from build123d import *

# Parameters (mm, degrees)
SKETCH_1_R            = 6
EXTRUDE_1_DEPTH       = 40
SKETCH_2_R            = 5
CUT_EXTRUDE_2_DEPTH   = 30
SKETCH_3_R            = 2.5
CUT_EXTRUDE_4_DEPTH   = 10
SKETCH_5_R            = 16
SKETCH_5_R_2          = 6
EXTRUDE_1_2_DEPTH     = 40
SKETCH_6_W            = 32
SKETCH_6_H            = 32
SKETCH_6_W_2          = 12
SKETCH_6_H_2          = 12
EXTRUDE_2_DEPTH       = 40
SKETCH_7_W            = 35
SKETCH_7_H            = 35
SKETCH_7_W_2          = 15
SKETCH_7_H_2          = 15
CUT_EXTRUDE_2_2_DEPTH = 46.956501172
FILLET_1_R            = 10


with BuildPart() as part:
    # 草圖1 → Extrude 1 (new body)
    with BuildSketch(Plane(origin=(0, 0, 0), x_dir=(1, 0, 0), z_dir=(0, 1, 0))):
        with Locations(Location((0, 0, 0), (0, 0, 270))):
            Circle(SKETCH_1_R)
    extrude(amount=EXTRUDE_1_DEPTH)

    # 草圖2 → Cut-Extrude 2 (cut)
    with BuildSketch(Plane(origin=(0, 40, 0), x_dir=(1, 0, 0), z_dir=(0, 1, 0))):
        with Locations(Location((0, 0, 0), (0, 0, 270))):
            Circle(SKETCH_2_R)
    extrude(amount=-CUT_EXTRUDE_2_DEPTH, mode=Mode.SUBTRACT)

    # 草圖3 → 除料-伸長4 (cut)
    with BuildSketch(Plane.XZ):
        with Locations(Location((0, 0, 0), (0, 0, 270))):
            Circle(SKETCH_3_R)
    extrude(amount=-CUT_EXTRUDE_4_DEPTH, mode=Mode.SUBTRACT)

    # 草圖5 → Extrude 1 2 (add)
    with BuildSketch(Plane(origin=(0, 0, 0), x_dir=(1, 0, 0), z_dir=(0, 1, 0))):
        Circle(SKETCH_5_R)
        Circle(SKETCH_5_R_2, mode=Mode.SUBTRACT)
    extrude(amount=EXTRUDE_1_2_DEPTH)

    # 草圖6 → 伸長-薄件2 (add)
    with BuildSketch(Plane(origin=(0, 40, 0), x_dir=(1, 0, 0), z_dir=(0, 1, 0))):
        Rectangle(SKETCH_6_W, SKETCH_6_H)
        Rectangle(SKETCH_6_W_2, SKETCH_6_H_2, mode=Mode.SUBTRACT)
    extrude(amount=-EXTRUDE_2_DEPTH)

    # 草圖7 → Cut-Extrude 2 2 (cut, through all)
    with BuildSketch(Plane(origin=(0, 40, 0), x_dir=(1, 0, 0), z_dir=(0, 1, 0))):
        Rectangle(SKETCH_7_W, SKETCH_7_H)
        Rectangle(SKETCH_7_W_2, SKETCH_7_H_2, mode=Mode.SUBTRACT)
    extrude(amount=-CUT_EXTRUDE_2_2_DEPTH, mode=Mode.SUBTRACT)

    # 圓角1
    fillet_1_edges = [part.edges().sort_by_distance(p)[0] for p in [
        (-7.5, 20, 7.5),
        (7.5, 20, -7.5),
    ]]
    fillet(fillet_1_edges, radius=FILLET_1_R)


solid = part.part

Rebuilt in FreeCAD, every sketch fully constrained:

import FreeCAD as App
import Part
import Sketcher
Q = App.Units.Quantity


def edges_at(feature, points):
    """Names of the edges that pass closest to the given points."""
    edges = feature.Shape.Edges
    near = lambda p: min(range(len(edges)), key=lambda i: edges[i].distToShape(Part.Vertex(*p))[0])
    return sorted({f"Edge{near(p) + 1}" for p in points})

doc = App.newDocument("Part")
body = doc.addObject("PartDesign::Body", "Body")

sketch1 = body.newObject("Sketcher::SketchObject", "Sketch")
sketch1.AttachmentSupport = (doc.getObject("XZ_Plane"), [""])
sketch1.MapMode = "FlatFace"
sketch1.addGeometry(Part.Circle(App.Vector(0, 0, 0), App.Vector(0, 0, 1), 6), False)
sketch1.addConstraint(Sketcher.Constraint("Coincident", 0, 3, -1, 1))
sketch1.addConstraint(Sketcher.Constraint("Diameter", 0, Q("12 mm")))
pad1 = body.newObject("PartDesign::Pad", "Pad")
pad1.Profile = sketch1
pad1.Length = 40
pad1.Reversed = True

sketch2 = body.newObject("Sketcher::SketchObject", "Sketch001")
sketch2.AttachmentSupport = (doc.getObject("XZ_Plane"), [""])
sketch2.MapMode = "FlatFace"
sketch2.AttachmentOffset = App.Placement(App.Vector(0, 0, -40), App.Rotation())
sketch2.addGeometry(Part.Circle(App.Vector(0, 0, 0), App.Vector(0, 0, 1), 5), False)
sketch2.addConstraint(Sketcher.Constraint("Coincident", 0, 3, -1, 1))
sketch2.addConstraint(Sketcher.Constraint("Diameter", 0, Q("10 mm")))
pocket1 = body.newObject("PartDesign::Pocket", "Pocket")
pocket1.Profile = sketch2
pocket1.Length = 30
pocket1.Reversed = True

sketch3 = body.newObject("Sketcher::SketchObject", "Sketch002")
sketch3.AttachmentSupport = (doc.getObject("XZ_Plane"), [""])
sketch3.MapMode = "FlatFace"
sketch3.addGeometry(Part.Circle(App.Vector(0, 0, 0), App.Vector(0, 0, 1), 2.5), False)
sketch3.addConstraint(Sketcher.Constraint("Coincident", 0, 3, -1, 1))
sketch3.addConstraint(Sketcher.Constraint("Diameter", 0, Q("5 mm")))
pocket2 = body.newObject("PartDesign::Pocket", "Pocket001")
pocket2.Profile = sketch3
pocket2.Length = 10

sketch4 = body.newObject("Sketcher::SketchObject", "Sketch003")
sketch4.AttachmentSupport = (doc.getObject("XZ_Plane"), [""])
sketch4.MapMode = "FlatFace"
sketch4.addGeometry(Part.Circle(App.Vector(0, 0, 0), App.Vector(0, 0, 1), 16), False)
sketch4.addGeometry(Part.Circle(App.Vector(0, 0, 0), App.Vector(0, 0, 1), 6), False)
sketch4.addConstraint(Sketcher.Constraint("Coincident", 0, 3, -1, 1))
sketch4.addConstraint(Sketcher.Constraint("Coincident", 1, 3, -1, 1))
sketch4.addConstraint(Sketcher.Constraint("Diameter", 0, Q("32 mm")))
sketch4.addConstraint(Sketcher.Constraint("Diameter", 1, Q("12 mm")))
pad2 = body.newObject("PartDesign::Pad", "Pad001")
pad2.Profile = sketch4
pad2.Length = 40
pad2.Reversed = True

sketch5 = body.newObject("Sketcher::SketchObject", "Sketch004")
sketch5.AttachmentSupport = (doc.getObject("XZ_Plane"), [""])
sketch5.MapMode = "FlatFace"
sketch5.AttachmentOffset = App.Placement(App.Vector(0, 0, -40), App.Rotation())
sketch5.addGeometry(Part.LineSegment(App.Vector(-16, -16, 0), App.Vector(-16, 16, 0)), False)
sketch5.addGeometry(Part.LineSegment(App.Vector(-16, 16, 0), App.Vector(16, 16, 0)), False)
sketch5.addGeometry(Part.LineSegment(App.Vector(16, 16, 0), App.Vector(16, -16, 0)), False)
sketch5.addGeometry(Part.LineSegment(App.Vector(16, -16, 0), App.Vector(-16, -16, 0)), False)
sketch5.addGeometry(Part.LineSegment(App.Vector(6, 6, 0), App.Vector(-6, 6, 0)), False)
sketch5.addGeometry(Part.LineSegment(App.Vector(-6, 6, 0), App.Vector(-6, -6, 0)), False)
sketch5.addGeometry(Part.LineSegment(App.Vector(-6, -6, 0), App.Vector(6, -6, 0)), False)
sketch5.addGeometry(Part.LineSegment(App.Vector(6, -6, 0), App.Vector(6, 6, 0)), False)
sketch5.addConstraint(Sketcher.Constraint("Coincident", 0, 2, 1, 1))
sketch5.addConstraint(Sketcher.Constraint("Coincident", 1, 2, 2, 1))
sketch5.addConstraint(Sketcher.Constraint("Coincident", 2, 2, 3, 1))
sketch5.addConstraint(Sketcher.Constraint("Coincident", 3, 2, 0, 1))
sketch5.addConstraint(Sketcher.Constraint("Coincident", 4, 2, 5, 1))
sketch5.addConstraint(Sketcher.Constraint("Coincident", 5, 2, 6, 1))
sketch5.addConstraint(Sketcher.Constraint("Coincident", 6, 2, 7, 1))
sketch5.addConstraint(Sketcher.Constraint("Coincident", 7, 2, 4, 1))
sketch5.addConstraint(Sketcher.Constraint("Vertical", 0))
sketch5.addConstraint(Sketcher.Constraint("Horizontal", 1))
sketch5.addConstraint(Sketcher.Constraint("Vertical", 2))
sketch5.addConstraint(Sketcher.Constraint("Horizontal", 3))
sketch5.addConstraint(Sketcher.Constraint("Horizontal", 4))
sketch5.addConstraint(Sketcher.Constraint("Vertical", 5))
sketch5.addConstraint(Sketcher.Constraint("Horizontal", 6))
sketch5.addConstraint(Sketcher.Constraint("Vertical", 7))
sketch5.addConstraint(Sketcher.Constraint("Symmetric", 0, 2, 2, 2, -1, 1))
sketch5.addConstraint(Sketcher.Constraint("Symmetric", 4, 2, 6, 2, -1, 1))
sketch5.addConstraint(Sketcher.Constraint("Equal", 3, 0))
sketch5.addConstraint(Sketcher.Constraint("Equal", 6, 5))
sketch5.addConstraint(Sketcher.Constraint("DistanceX", 1, 1, 1, 2, Q("32 mm")))
sketch5.addConstraint(Sketcher.Constraint("DistanceX", 4, 2, 4, 1, Q("12 mm")))
pad3 = body.newObject("PartDesign::Pad", "Pad002")
pad3.Profile = sketch5
pad3.Length = 40

sketch6 = body.newObject("Sketcher::SketchObject", "Sketch005")
sketch6.AttachmentSupport = (doc.getObject("XZ_Plane"), [""])
sketch6.MapMode = "FlatFace"
sketch6.AttachmentOffset = App.Placement(App.Vector(0, 0, -40), App.Rotation())
sketch6.addGeometry(Part.LineSegment(App.Vector(-18, -18, 0), App.Vector(-18, 18, 0)), False)
sketch6.addGeometry(Part.LineSegment(App.Vector(-18, 18, 0), App.Vector(18, 18, 0)), False)
sketch6.addGeometry(Part.LineSegment(App.Vector(18, 18, 0), App.Vector(18, -18, 0)), False)
sketch6.addGeometry(Part.LineSegment(App.Vector(18, -18, 0), App.Vector(-18, -18, 0)), False)
sketch6.addGeometry(Part.LineSegment(App.Vector(8, 8, 0), App.Vector(-8, 8, 0)), False)
sketch6.addGeometry(Part.LineSegment(App.Vector(-8, 8, 0), App.Vector(-8, -8, 0)), False)
sketch6.addGeometry(Part.LineSegment(App.Vector(-8, -8, 0), App.Vector(8, -8, 0)), False)
sketch6.addGeometry(Part.LineSegment(App.Vector(8, -8, 0), App.Vector(8, 8, 0)), False)
sketch6.addConstraint(Sketcher.Constraint("Coincident", 0, 2, 1, 1))
sketch6.addConstraint(Sketcher.Constraint("Coincident", 1, 2, 2, 1))
sketch6.addConstraint(Sketcher.Constraint("Coincident", 2, 2, 3, 1))
sketch6.addConstraint(Sketcher.Constraint("Coincident", 3, 2, 0, 1))
sketch6.addConstraint(Sketcher.Constraint("Coincident", 4, 2, 5, 1))
sketch6.addConstraint(Sketcher.Constraint("Coincident", 5, 2, 6, 1))
sketch6.addConstraint(Sketcher.Constraint("Coincident", 6, 2, 7, 1))
sketch6.addConstraint(Sketcher.Constraint("Coincident", 7, 2, 4, 1))
sketch6.addConstraint(Sketcher.Constraint("Vertical", 0))
sketch6.addConstraint(Sketcher.Constraint("Horizontal", 1))
sketch6.addConstraint(Sketcher.Constraint("Vertical", 2))
sketch6.addConstraint(Sketcher.Constraint("Horizontal", 3))
sketch6.addConstraint(Sketcher.Constraint("Horizontal", 4))
sketch6.addConstraint(Sketcher.Constraint("Vertical", 5))
sketch6.addConstraint(Sketcher.Constraint("Horizontal", 6))
sketch6.addConstraint(Sketcher.Constraint("Vertical", 7))
sketch6.addConstraint(Sketcher.Constraint("Symmetric", 0, 2, 2, 2, -1, 1))
sketch6.addConstraint(Sketcher.Constraint("Symmetric", 4, 2, 6, 2, -1, 1))
sketch6.addConstraint(Sketcher.Constraint("Equal", 3, 0))
sketch6.addConstraint(Sketcher.Constraint("Equal", 6, 5))
sketch6.addConstraint(Sketcher.Constraint("DistanceX", 1, 1, 1, 2, Q("35 mm")))
sketch6.addConstraint(Sketcher.Constraint("DistanceX", 4, 2, 4, 1, Q("15 mm")))
pocket3 = body.newObject("PartDesign::Pocket", "Pocket002")
pocket3.Profile = sketch6
pocket3.Type = "ThroughAll"
pocket3.Reversed = True
doc.recompute()

fillet = body.newObject("PartDesign::Fillet", "Fillet")
fillet.Base = (pocket3, edges_at(pocket3, [(-7.5, 20, 7.5), (7.5, 20, -7.5)]))
fillet.Radius = 10

doc.recompute()
